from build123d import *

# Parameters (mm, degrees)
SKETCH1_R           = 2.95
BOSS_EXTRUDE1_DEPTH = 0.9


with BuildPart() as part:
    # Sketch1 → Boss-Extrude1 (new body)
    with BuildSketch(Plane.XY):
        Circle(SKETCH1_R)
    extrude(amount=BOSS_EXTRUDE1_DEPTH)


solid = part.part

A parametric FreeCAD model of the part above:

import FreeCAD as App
import Part
import Sketcher
from FreeCAD import Vector
Q = App.Units.Quantity

doc = App.newDocument("Part")
body = doc.addObject("PartDesign::Body", "Body")

# Sketch on XY plane
sketch1 = body.newObject("Sketcher::SketchObject", "Sketch")
sketch1.AttachmentSupport = (doc.getObject("XY_Plane"), [""])
sketch1.MapMode = "FlatFace"
sketch1.addGeometry(Part.Circle(Vector(0, 0, 0), Vector(0, 0, 1), 3), False)
sketch1.addConstraint([
    Sketcher.Constraint("Coincident", 0, 3, -1, 1),
    Sketcher.Constraint("Diameter", 0, Q("5.9 mm")),
])
pad1 = body.newObject("PartDesign::Pad", "Pad")
pad1.Profile = sketch1
pad1.Length = 0.9

doc.recompute()
